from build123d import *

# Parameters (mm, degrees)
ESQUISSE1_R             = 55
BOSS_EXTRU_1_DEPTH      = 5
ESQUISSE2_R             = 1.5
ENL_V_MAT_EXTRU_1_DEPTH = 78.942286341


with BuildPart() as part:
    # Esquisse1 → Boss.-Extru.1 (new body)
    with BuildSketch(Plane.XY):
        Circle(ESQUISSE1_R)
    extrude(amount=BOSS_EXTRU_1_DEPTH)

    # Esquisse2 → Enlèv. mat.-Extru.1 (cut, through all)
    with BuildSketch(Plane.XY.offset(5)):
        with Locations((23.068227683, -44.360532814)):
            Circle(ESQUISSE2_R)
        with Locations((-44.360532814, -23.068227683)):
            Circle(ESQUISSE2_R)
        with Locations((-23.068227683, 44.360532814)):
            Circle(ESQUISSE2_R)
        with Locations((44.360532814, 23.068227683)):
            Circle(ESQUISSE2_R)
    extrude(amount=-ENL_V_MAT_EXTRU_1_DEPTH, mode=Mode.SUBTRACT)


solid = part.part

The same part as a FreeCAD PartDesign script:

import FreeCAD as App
import Part
import Sketcher

V = App.Vector
Q = App.Units.Quantity

doc = App.newDocument("Part")
body = doc.addObject("PartDesign::Body", "Body")

# Sketch on XY plane
sketch1 = doc.addObject("Sketcher::SketchObject", "Sketch")
body.addObject(sketch1)
sketch1.AttachmentSupport = (doc.XY_Plane, [""])
sketch1.MapMode = "FlatFace"
sketch1.addGeometry(Part.Circle(V(0, 0, 0), V(0, 0, 1), 55), False)
sketch1.addConstraint(Sketcher.Constraint("Coincident", 0, 3, -1, 1))
sketch1.addConstraint(Sketcher.Constraint("Diameter", 0, Q("110 mm")))
pad1 = doc.addObject("PartDesign::Pad", "Pad")
body.addObject(pad1)
pad1.Profile = sketch1
pad1.Length = 5

# Sketch on XY plane
sketch2 = doc.addObject("Sketcher::SketchObject", "Sketch001")
body.addObject(sketch2)
sketch2.AttachmentSupport = (doc.XY_Plane, [""])
sketch2.MapMode = "FlatFace"
sketch2.AttachmentOffset = App.Placement(V(0, 0, 5), App.Rotation())
sketch2.addGeometry(Part.Circle(V(23.1, -44.4, 0), V(0, 0, 1), 1.5), False)
sketch2.addGeometry(Part.Circle(V(-44.4, -23.1, 0), V(0, 0, 1), 1.5), False)
sketch2.addGeometry(Part.Circle(V(-23.1, 44.4, 0), V(0, 0, 1), 1.5), False)
sketch2.addGeometry(Part.Circle(V(44.4, 23.1, 0), V(0, 0, 1), 1.5), False)
sketch2.addConstraint(Sketcher.Constraint("Equal", 0, 1))
sketch2.addConstraint(Sketcher.Constraint("Equal", 1, 2))
sketch2.addConstraint(Sketcher.Constraint("Equal", 2, 3))
sketch2.addConstraint(Sketcher.Constraint("Symmetric", 0, 3, 2, 3, -1, 1))
sketch2.addConstraint(Sketcher.Constraint("Symmetric", 1, 3, 3, 3, -1, 1))
sketch2.addConstraint(Sketcher.Constraint("Diameter", 0, Q("3 mm")))
sketch2.addConstraint(Sketcher.Constraint("DistanceX", 1, 3, 0, 3, Q("67.42876 mm")))
sketch2.addConstraint(Sketcher.Constraint("DistanceY", 1, 3, 2, 3, Q("67.42876 mm")))
sketch2.addConstraint(Sketcher.Constraint("DistanceX", -1, 1, 0, 3, Q("23.068228 mm")))
sketch2.addConstraint(Sketcher.Constraint("DistanceY", 0, 3, -1, 1, Q("44.360533 mm")))
pocket1 = doc.addObject("PartDesign::Pocket", "Pocket")
body.addObject(pocket1)
pocket1.Profile = sketch2
pocket1.Type = "ThroughAll"

doc.recompute()
